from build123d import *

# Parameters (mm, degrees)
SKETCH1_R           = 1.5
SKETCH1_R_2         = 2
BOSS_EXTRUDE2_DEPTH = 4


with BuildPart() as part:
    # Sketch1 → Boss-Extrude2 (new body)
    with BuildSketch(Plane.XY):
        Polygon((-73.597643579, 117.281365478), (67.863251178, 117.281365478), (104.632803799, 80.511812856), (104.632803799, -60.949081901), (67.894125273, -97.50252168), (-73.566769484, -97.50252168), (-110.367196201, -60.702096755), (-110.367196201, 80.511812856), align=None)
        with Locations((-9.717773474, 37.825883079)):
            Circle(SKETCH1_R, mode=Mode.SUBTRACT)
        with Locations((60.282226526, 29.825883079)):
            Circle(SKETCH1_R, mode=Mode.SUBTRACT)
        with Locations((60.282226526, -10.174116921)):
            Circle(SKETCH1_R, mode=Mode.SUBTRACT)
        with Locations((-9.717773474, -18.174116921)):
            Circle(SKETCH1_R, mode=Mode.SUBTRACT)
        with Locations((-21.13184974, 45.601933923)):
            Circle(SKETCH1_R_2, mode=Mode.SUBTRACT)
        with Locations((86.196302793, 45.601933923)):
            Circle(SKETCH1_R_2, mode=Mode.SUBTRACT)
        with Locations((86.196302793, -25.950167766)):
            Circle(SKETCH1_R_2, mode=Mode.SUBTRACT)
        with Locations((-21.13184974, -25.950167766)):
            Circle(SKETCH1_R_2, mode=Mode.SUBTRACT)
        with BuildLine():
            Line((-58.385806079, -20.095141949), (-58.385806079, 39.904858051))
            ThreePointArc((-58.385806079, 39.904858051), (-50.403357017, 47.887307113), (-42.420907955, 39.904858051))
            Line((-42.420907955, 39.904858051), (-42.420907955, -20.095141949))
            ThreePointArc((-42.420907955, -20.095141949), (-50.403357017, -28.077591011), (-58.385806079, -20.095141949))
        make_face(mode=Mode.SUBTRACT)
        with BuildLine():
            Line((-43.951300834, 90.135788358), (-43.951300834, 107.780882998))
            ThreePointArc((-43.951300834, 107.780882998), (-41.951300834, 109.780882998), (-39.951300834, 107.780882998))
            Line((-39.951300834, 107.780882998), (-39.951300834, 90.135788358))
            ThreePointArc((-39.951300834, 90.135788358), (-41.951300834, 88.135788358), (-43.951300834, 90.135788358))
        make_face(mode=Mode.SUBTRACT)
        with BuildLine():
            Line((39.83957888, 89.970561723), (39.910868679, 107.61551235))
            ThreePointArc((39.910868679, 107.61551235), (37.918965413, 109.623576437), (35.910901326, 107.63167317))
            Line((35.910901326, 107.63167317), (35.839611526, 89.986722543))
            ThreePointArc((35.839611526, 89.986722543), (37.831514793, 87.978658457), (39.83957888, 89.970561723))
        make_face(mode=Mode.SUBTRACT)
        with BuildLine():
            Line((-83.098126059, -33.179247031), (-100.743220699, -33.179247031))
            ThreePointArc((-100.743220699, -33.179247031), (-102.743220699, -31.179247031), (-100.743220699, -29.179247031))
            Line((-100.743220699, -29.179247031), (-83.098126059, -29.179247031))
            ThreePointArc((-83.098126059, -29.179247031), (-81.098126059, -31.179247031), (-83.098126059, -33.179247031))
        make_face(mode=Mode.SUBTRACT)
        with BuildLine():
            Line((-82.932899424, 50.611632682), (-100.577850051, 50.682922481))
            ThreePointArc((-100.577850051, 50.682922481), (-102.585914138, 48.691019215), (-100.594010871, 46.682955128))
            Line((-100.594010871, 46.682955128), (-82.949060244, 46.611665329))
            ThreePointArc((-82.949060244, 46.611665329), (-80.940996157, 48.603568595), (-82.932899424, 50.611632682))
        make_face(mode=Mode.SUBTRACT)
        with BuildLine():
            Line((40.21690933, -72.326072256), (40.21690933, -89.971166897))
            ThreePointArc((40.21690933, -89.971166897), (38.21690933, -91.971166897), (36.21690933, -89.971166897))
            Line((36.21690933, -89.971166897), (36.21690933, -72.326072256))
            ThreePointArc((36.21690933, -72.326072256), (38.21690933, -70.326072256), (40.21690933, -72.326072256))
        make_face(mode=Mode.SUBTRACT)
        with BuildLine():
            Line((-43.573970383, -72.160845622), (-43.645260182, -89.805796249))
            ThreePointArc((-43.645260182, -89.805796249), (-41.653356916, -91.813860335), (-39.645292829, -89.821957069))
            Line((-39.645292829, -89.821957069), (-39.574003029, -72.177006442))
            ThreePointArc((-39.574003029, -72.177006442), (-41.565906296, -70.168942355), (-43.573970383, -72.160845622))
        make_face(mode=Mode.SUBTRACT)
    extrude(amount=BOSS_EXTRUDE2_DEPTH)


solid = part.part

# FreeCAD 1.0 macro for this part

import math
import FreeCAD as App
import Part
import Sketcher

V = App.Vector

doc = App.newDocument("Part")
body = doc.addObject("PartDesign::Body", "Body")

sketch1 = body.newObject("Sketcher::SketchObject", "Sketch")
sketch1.AttachmentSupport = (doc.getObject("XY_Plane"), [""])
sketch1.MapMode = "FlatFace"
sketch1.addGeometry(Part.LineSegment(V(67.9, 117.3, 0), V(-73.6, 117.3, 0)), False)
sketch1.addGeometry(Part.LineSegment(V(-73.6, 117.3, 0), V(-110.4, 80.5, 0)), False)
sketch1.addGeometry(Part.LineSegment(V(-110.4, 80.5, 0), V(-110.4, -60.7, 0)), False)
sketch1.addGeometry(Part.LineSegment(V(-110.4, -60.7, 0), V(-73.6, -97.5, 0)), False)
sketch1.addGeometry(Part.LineSegment(V(-73.6, -97.5, 0), V(67.9, -97.5, 0)), False)
sketch1.addGeometry(Part.LineSegment(V(67.9, -97.5, 0), V(104.6, -60.9, 0)), False)
sketch1.addGeometry(Part.LineSegment(V(104.6, -60.9, 0), V(104.6, 80.5, 0)), False)
sketch1.addGeometry(Part.LineSegment(V(104.6, 80.5, 0), V(67.9, 117.3, 0)), False)
sketch1.addGeometry(Part.LineSegment(V(40.2, -72.3, 0), V(40.2, -90, 0)), False)
sketch1.addGeometry(Part.ArcOfCircle(Part.Circle(V(38.2, -90, 0), V(0, 0, 1), 2), math.radians(180), math.radians(360)), False)
sketch1.addGeometry(Part.LineSegment(V(36.2, -90, 0), V(36.2, -72.3, 0)), False)
sketch1.addGeometry(Part.ArcOfCircle(Part.Circle(V(38.2, -72.3, 0), V(0, 0, 1), 2), math.radians(0), math.radians(180)), False)
sketch1.addGeometry(Part.Circle(V(86.2, -26, 0), V(0, 0, 1), 2), False)
sketch1.addGeometry(Part.Circle(V(60.3, -10.2, 0), V(0, 0, 1), 1.5), False)
sketch1.addGeometry(Part.ArcOfCircle(Part.Circle(V(-41.6, -72.2, 0), V(0, 0, 1), 2), math.radians(0), math.radians(180)), False)
sketch1.addGeometry(Part.LineSegment(V(-39.6, -72.2, 0), V(-39.6, -89.8, 0)), False)
sketch1.addGeometry(Part.ArcOfCircle(Part.Circle(V(-41.6, -89.8, 0), V(0, 0, 1), 2), math.radians(180), math.radians(360)), False)
sketch1.addGeometry(Part.LineSegment(V(-43.6, -89.8, 0), V(-43.6, -72.2, 0)), False)
sketch1.addGeometry(Part.Circle(V(-9.7, -18.2, 0), V(0, 0, 1), 1.5), False)
sketch1.addGeometry(Part.Circle(V(-21.1, -26, 0), V(0, 0, 1), 2), False)
sketch1.addGeometry(Part.LineSegment(V(-83.1, -33.2, 0), V(-100.7, -33.2, 0)), False)
sketch1.addGeometry(Part.ArcOfCircle(Part.Circle(V(-100.7, -31.2, 0), V(0, 0, 1), 2), math.radians(90), math.radians(270)), False)
sketch1.addGeometry(Part.LineSegment(V(-100.7, -29.2, 0), V(-83.1, -29.2, 0)), False)
sketch1.addGeometry(Part.ArcOfCircle(Part.Circle(V(-83.1, -31.2, 0), V(0, 0, 1), 2), math.radians(-90), math.radians(90)), False)
sketch1.addGeometry(Part.Circle(V(60.3, 29.8, 0), V(0, 0, 1), 1.5), False)
sketch1.addGeometry(Part.Circle(V(86.2, 45.6, 0), V(0, 0, 1), 2), False)
sketch1.addGeometry(Part.ArcOfCircle(Part.Circle(V(37.8, 90, 0), V(0, 0, 1), 2), math.radians(180), math.radians(360)), False)
sketch1.addGeometry(Part.LineSegment(V(35.8, 90, 0), V(35.9, 107.6, 0)), False)
sketch1.addGeometry(Part.ArcOfCircle(Part.Circle(V(37.9, 107.6, 0), V(0, 0, 1), 2), math.radians(0), math.radians(180)), False)
sketch1.addGeometry(Part.LineSegment(V(39.9, 107.6, 0), V(39.8, 90, 0)), False)
sketch1.addGeometry(Part.LineSegment(V(-58.4, -20.1, 0), V(-58.4, 39.9, 0)), False)
sketch1.addGeometry(Part.ArcOfCircle(Part.Circle(V(-50.4, 39.9, 0), V(0, 0, 1), 8), math.radians(0), math.radians(180)), False)
sketch1.addGeometry(Part.LineSegment(V(-42.4, 39.9, 0), V(-42.4, -20.1, 0)), False)
sketch1.addGeometry(Part.ArcOfCircle(Part.Circle(V(-50.4, -20.1, 0), V(0, 0, 1), 8), math.radians(180), math.radians(360)), False)
sketch1.addGeometry(Part.Circle(V(-9.7, 37.8, 0), V(0, 0, 1), 1.5), False)
sketch1.addGeometry(Part.Circle(V(-21.1, 45.6, 0), V(0, 0, 1), 2), False)
sketch1.addGeometry(Part.ArcOfCircle(Part.Circle(V(-82.9, 48.6, 0), V(0, 0, 1), 2), math.radians(-90), math.radians(90)), False)
sketch1.addGeometry(Part.LineSegment(V(-82.9, 46.6, 0), V(-100.6, 46.7, 0)), False)
sketch1.addGeometry(Part.ArcOfCircle(Part.Circle(V(-100.6, 48.7, 0), V(0, 0, 1), 2), math.radians(90), math.radians(270)), False)
sketch1.addGeometry(Part.LineSegment(V(-100.6, 50.7, 0), V(-82.9, 50.6, 0)), False)
sketch1.addGeometry(Part.LineSegment(V(-44, 90.1, 0), V(-44, 107.8, 0)), False)
sketch1.addGeometry(Part.ArcOfCircle(Part.Circle(V(-42, 107.8, 0), V(0, 0, 1), 2), math.radians(0), math.radians(180)), False)
sketch1.addGeometry(Part.LineSegment(V(-40, 107.8, 0), V(-40, 90.1, 0)), False)
sketch1.addGeometry(Part.ArcOfCircle(Part.Circle(V(-42, 90.1, 0), V(0, 0, 1), 2), math.radians(180), math.radians(360)), False)
sketch1.addConstraint(Sketcher.Constraint("Coincident", 0, 2, 1, 1))
sketch1.addConstraint(Sketcher.Constraint("Coincident", 1, 2, 2, 1))
sketch1.addConstraint(Sketcher.Constraint("Coincident", 2, 2, 3, 1))
sketch1.addConstraint(Sketcher.Constraint("Coincident", 3, 2, 4, 1))
sketch1.addConstraint(Sketcher.Constraint("Coincident", 4, 2, 5, 1))
sketch1.addConstraint(Sketcher.Constraint("Coincident", 5, 2, 6, 1))
sketch1.addConstraint(Sketcher.Constraint("Coincident", 6, 2, 7, 1))
sketch1.addConstraint(Sketcher.Constraint("Coincident", 7, 2, 0, 1))
sketch1.addConstraint(Sketcher.Constraint("Tangent", 8, 2, 9, 2))
sketch1.addConstraint(Sketcher.Constraint("Tangent", 9, 1, 10, 1))
sketch1.addConstraint(Sketcher.Constraint("Tangent", 10, 2, 11, 2))
sketch1.addConstraint(Sketcher.Constraint("Tangent", 11, 1, 8, 1))
sketch1.addConstraint(Sketcher.Constraint("Tangent", 14, 1, 15, 1))
sketch1.addConstraint(Sketcher.Constraint("Tangent", 15, 2, 16, 2))
sketch1.addConstraint(Sketcher.Constraint("Tangent", 16, 1, 17, 1))
sketch1.addConstraint(Sketcher.Constraint("Tangent", 17, 2, 14, 2))
sketch1.addConstraint(Sketcher.Constraint("Tangent", 20, 2, 21, 2))
sketch1.addConstraint(Sketcher.Constraint("Tangent", 21, 1, 22, 1))
sketch1.addConstraint(Sketcher.Constraint("Tangent", 22, 2, 23, 2))
sketch1.addConstraint(Sketcher.Constraint("Tangent", 23, 1, 20, 1))
sketch1.addConstraint(Sketcher.Constraint("Tangent", 26, 1, 27, 1))
sketch1.addConstraint(Sketcher.Constraint("Tangent", 27, 2, 28, 2))
sketch1.addConstraint(Sketcher.Constraint("Tangent", 28, 1, 29, 1))
sketch1.addConstraint(Sketcher.Constraint("Tangent", 29, 2, 26, 2))
sketch1.addConstraint(Sketcher.Constraint("Tangent", 30, 2, 31, 2))
sketch1.addConstraint(Sketcher.Constraint("Tangent", 31, 1, 32, 1))
sketch1.addConstraint(Sketcher.Constraint("Tangent", 32, 2, 33, 2))
sketch1.addConstraint(Sketcher.Constraint("Tangent", 33, 1, 30, 1))
sketch1.addConstraint(Sketcher.Constraint("Tangent", 36, 1, 37, 1))
sketch1.addConstraint(Sketcher.Constraint("Tangent", 37, 2, 38, 2))
sketch1.addConstraint(Sketcher.Constraint("Tangent", 38, 1, 39, 1))
sketch1.addConstraint(Sketcher.Constraint("Tangent", 39, 2, 36, 2))
sketch1.addConstraint(Sketcher.Constraint("Tangent", 40, 2, 41, 2))
sketch1.addConstraint(Sketcher.Constraint("Tangent", 41, 1, 42, 1))
sketch1.addConstraint(Sketcher.Constraint("Tangent", 42, 2, 43, 2))
sketch1.addConstraint(Sketcher.Constraint("Tangent", 43, 1, 40, 1))
sketch1.addConstraint(Sketcher.Constraint("Horizontal", 0))
sketch1.addConstraint(Sketcher.Constraint("Vertical", 2))
sketch1.addConstraint(Sketcher.Constraint("Horizontal", 4))
sketch1.addConstraint(Sketcher.Constraint("Vertical", 6))
sketch1.addConstraint(Sketcher.Constraint("Vertical", 8))
sketch1.addConstraint(Sketcher.Constraint("Vertical", 10))
sketch1.addConstraint(Sketcher.Constraint("Horizontal", 20))
sketch1.addConstraint(Sketcher.Constraint("Horizontal", 22))
sketch1.addConstraint(Sketcher.Constraint("Vertical", 30))
sketch1.addConstraint(Sketcher.Constraint("Vertical", 32))
sketch1.addConstraint(Sketcher.Constraint("Vertical", 40))
sketch1.addConstraint(Sketcher.Constraint("Vertical", 42))
sketch1.addConstraint(Sketcher.Constraint("Equal", 11, 12))
sketch1.addConstraint(Sketcher.Constraint("Equal", 12, 14))
sketch1.addConstraint(Sketcher.Constraint("Equal", 14, 16))
sketch1.addConstraint(Sketcher.Constraint("Equal", 13, 18))
sketch1.addConstraint(Sketcher.Constraint("Equal", 16, 19))
sketch1.addConstraint(Sketcher.Constraint("Equal", 19, 21))
sketch1.addConstraint(Sketcher.Constraint("Equal", 18, 24))
sketch1.addConstraint(Sketcher.Constraint("Equal", 23, 25))
sketch1.addConstraint(Sketcher.Constraint("Equal", 25, 26))
sketch1.addConstraint(Sketcher.Constraint("Equal", 26, 28))
sketch1.addConstraint(Sketcher.Constraint("Equal", 24, 34))
sketch1.addConstraint(Sketcher.Constraint("Equal", 28, 35))
sketch1.addConstraint(Sketcher.Constraint("Equal", 35, 36))
sketch1.addConstraint(Sketcher.Constraint("Equal", 36, 38))
sketch1.addConstraint(Sketcher.Constraint("Equal", 38, 41))
sketch1.addConstraint(Sketcher.Constraint("Perpendicular", 1, 3))
sketch1.addConstraint(Sketcher.Constraint("Parallel", 3, 7))
sketch1.addConstraint(Sketcher.Constraint("Parallel", 17, 27))
sketch1.addConstraint(Sketcher.Constraint("Perpendicular", 29, 37))
sketch1.addConstraint(Sketcher.Constraint("Horizontal", 12, 3, 19, 3))
sketch1.addConstraint(Sketcher.Constraint("Horizontal", 25, 3, 35, 3))
sketch1.addConstraint(Sketcher.Constraint("Horizontal", 1, 2, 6, 2))
sketch1.addConstraint(Sketcher.Constraint("Vertical", 13, 3, 24, 3))
sketch1.addConstraint(Sketcher.Constraint("Vertical", 12, 3, 25, 3))
sketch1.addConstraint(Sketcher.Constraint("Vertical", 18, 3, 34, 3))
sketch1.addConstraint(Sketcher.Constraint("Vertical", 19, 3, 35, 3))
sketch1.addConstraint(Sketcher.Constraint("Equal", 0, 4))
sketch1.addConstraint(Sketcher.Constraint("Equal", 4, 6))
sketch1.addConstraint(Sketcher.Constraint("Equal", 22, 8))
sketch1.addConstraint(Sketcher.Constraint("Equal", 10, 40))
sketch1.addConstraint(Sketcher.Constraint("Equal", 1, 7))
sketch1.addConstraint(Sketcher.Constraint("Equal", 17, 27))
sketch1.addConstraint(Sketcher.Constraint("Equal", 29, 37))
sketch1.addConstraint(Sketcher.Constraint("Diameter", 12, 4.0))
sketch1.addConstraint(Sketcher.Constraint("Diameter", 13, 3.0))
sketch1.addConstraint(Sketcher.Constraint("DistanceY", 30, 1, 30, 2, 60.0))
sketch1.addConstraint(Sketcher.Constraint("Distance", 1, 52.0))
sketch1.addConstraint(Sketcher.Constraint("DistanceX", 18, 3, 13, 3, 70.0))
sketch1.addConstraint(Sketcher.Constraint("DistanceY", 18, 3, 13, 3, 8.0))
sketch1.addConstraint(Sketcher.Constraint("DistanceY", 13, 3, 24, 3, 40.0))
sketch1.addConstraint(Sketcher.Constraint("DistanceY", 18, 3, 34, 3, 56.0))
sketch1.addConstraint(Sketcher.Constraint("Radius", 31, 7.982449))
sketch1.addConstraint(Sketcher.Constraint("DistanceY", 9, 3, 12, 3, 64.020999))
sketch1.addConstraint(Sketcher.Constraint("DistanceY", 34, 3, 41, 3, 69.955))
sketch1.addConstraint(Sketcher.Constraint("DistanceY", 2, 2, 2, 1, 141.21391))
sketch1.addConstraint(Sketcher.Constraint("DistanceX", 41, 3, -1, 1, 41.951301))
sketch1.addConstraint(Sketcher.Constraint("DistanceX", -1, 1, 27, 2, 35.910901))
sketch1.addConstraint(Sketcher.Constraint("DistanceX", 39, 2, -1, 1, 82.932899))
sketch1.addConstraint(Sketcher.Constraint("DistanceY", 12, 3, 25, 3, 71.552102))
sketch1.addConstraint(Sketcher.Constraint("DistanceX", 13, 3, 4, 2, 7.611899))
sketch1.addConstraint(Sketcher.Constraint("DistanceX", 16, 3, 4, 2, 109.539402))
sketch1.addConstraint(Sketcher.Constraint("DistanceX", 12, 3, 5, 2, 18.436501))
sketch1.addConstraint(Sketcher.Constraint("DistanceY", 17, 2, 20, 2, 38.981599))
sketch1.addConstraint(Sketcher.Constraint("Distance", 3, 52.043661))
sketch1.addConstraint(Sketcher.Constraint("Distance", 5, 51.825519))
sketch1.addConstraint(Sketcher.Constraint("DistanceX", 20, 2, 20, 1, 17.645095))
sketch1.addConstraint(Sketcher.Constraint("DistanceX", -1, 1, 9, 3, 38.216909))
sketch1.addConstraint(Sketcher.Constraint("DistanceX", 19, 3, -1, 1, 21.13185))
sketch1.addConstraint(Sketcher.Constraint("DistanceX", 21, 3, -1, 1, 100.743221))
sketch1.addConstraint(Sketcher.Constraint("DistanceY", -1, 1, 31, 3, 39.904858))
sketch1.addConstraint(Sketcher.Constraint("DistanceX", 36, 3, -1, 1, 82.94098))
sketch1.addConstraint(Sketcher.Constraint("DistanceY", -1, 1, 36, 3, 48.611649))
sketch1.addConstraint(Sketcher.Constraint("DistanceX", 38, 3, -1, 1, 100.58593))
sketch1.addConstraint(Sketcher.Constraint("DistanceY", -1, 1, 43, 3, 90.135788))
sketch1.addConstraint(Sketcher.Constraint("DistanceX", 3, 2, -1, 1, 73.566769))
sketch1.addConstraint(Sketcher.Constraint("DistanceY", 3, 2, -1, 1, 97.502522))
sketch1.addConstraint(Sketcher.Constraint("DistanceY", -1, 1, 29, 2, 89.970562))
sketch1.addConstraint(Sketcher.Constraint("DistanceY", 12, 3, 13, 3, 15.776051))
sketch1.addConstraint(Sketcher.Constraint("DistanceY", 9, 3, 14, 3, 17.802241))
sketch1.addConstraint(Sketcher.Constraint("DistanceX", 23, 3, 31, 3, 32.694769))
pad1 = body.newObject("PartDesign::Pad", "Pad")
pad1.Profile = sketch1
pad1.Length = 4

doc.recompute()
